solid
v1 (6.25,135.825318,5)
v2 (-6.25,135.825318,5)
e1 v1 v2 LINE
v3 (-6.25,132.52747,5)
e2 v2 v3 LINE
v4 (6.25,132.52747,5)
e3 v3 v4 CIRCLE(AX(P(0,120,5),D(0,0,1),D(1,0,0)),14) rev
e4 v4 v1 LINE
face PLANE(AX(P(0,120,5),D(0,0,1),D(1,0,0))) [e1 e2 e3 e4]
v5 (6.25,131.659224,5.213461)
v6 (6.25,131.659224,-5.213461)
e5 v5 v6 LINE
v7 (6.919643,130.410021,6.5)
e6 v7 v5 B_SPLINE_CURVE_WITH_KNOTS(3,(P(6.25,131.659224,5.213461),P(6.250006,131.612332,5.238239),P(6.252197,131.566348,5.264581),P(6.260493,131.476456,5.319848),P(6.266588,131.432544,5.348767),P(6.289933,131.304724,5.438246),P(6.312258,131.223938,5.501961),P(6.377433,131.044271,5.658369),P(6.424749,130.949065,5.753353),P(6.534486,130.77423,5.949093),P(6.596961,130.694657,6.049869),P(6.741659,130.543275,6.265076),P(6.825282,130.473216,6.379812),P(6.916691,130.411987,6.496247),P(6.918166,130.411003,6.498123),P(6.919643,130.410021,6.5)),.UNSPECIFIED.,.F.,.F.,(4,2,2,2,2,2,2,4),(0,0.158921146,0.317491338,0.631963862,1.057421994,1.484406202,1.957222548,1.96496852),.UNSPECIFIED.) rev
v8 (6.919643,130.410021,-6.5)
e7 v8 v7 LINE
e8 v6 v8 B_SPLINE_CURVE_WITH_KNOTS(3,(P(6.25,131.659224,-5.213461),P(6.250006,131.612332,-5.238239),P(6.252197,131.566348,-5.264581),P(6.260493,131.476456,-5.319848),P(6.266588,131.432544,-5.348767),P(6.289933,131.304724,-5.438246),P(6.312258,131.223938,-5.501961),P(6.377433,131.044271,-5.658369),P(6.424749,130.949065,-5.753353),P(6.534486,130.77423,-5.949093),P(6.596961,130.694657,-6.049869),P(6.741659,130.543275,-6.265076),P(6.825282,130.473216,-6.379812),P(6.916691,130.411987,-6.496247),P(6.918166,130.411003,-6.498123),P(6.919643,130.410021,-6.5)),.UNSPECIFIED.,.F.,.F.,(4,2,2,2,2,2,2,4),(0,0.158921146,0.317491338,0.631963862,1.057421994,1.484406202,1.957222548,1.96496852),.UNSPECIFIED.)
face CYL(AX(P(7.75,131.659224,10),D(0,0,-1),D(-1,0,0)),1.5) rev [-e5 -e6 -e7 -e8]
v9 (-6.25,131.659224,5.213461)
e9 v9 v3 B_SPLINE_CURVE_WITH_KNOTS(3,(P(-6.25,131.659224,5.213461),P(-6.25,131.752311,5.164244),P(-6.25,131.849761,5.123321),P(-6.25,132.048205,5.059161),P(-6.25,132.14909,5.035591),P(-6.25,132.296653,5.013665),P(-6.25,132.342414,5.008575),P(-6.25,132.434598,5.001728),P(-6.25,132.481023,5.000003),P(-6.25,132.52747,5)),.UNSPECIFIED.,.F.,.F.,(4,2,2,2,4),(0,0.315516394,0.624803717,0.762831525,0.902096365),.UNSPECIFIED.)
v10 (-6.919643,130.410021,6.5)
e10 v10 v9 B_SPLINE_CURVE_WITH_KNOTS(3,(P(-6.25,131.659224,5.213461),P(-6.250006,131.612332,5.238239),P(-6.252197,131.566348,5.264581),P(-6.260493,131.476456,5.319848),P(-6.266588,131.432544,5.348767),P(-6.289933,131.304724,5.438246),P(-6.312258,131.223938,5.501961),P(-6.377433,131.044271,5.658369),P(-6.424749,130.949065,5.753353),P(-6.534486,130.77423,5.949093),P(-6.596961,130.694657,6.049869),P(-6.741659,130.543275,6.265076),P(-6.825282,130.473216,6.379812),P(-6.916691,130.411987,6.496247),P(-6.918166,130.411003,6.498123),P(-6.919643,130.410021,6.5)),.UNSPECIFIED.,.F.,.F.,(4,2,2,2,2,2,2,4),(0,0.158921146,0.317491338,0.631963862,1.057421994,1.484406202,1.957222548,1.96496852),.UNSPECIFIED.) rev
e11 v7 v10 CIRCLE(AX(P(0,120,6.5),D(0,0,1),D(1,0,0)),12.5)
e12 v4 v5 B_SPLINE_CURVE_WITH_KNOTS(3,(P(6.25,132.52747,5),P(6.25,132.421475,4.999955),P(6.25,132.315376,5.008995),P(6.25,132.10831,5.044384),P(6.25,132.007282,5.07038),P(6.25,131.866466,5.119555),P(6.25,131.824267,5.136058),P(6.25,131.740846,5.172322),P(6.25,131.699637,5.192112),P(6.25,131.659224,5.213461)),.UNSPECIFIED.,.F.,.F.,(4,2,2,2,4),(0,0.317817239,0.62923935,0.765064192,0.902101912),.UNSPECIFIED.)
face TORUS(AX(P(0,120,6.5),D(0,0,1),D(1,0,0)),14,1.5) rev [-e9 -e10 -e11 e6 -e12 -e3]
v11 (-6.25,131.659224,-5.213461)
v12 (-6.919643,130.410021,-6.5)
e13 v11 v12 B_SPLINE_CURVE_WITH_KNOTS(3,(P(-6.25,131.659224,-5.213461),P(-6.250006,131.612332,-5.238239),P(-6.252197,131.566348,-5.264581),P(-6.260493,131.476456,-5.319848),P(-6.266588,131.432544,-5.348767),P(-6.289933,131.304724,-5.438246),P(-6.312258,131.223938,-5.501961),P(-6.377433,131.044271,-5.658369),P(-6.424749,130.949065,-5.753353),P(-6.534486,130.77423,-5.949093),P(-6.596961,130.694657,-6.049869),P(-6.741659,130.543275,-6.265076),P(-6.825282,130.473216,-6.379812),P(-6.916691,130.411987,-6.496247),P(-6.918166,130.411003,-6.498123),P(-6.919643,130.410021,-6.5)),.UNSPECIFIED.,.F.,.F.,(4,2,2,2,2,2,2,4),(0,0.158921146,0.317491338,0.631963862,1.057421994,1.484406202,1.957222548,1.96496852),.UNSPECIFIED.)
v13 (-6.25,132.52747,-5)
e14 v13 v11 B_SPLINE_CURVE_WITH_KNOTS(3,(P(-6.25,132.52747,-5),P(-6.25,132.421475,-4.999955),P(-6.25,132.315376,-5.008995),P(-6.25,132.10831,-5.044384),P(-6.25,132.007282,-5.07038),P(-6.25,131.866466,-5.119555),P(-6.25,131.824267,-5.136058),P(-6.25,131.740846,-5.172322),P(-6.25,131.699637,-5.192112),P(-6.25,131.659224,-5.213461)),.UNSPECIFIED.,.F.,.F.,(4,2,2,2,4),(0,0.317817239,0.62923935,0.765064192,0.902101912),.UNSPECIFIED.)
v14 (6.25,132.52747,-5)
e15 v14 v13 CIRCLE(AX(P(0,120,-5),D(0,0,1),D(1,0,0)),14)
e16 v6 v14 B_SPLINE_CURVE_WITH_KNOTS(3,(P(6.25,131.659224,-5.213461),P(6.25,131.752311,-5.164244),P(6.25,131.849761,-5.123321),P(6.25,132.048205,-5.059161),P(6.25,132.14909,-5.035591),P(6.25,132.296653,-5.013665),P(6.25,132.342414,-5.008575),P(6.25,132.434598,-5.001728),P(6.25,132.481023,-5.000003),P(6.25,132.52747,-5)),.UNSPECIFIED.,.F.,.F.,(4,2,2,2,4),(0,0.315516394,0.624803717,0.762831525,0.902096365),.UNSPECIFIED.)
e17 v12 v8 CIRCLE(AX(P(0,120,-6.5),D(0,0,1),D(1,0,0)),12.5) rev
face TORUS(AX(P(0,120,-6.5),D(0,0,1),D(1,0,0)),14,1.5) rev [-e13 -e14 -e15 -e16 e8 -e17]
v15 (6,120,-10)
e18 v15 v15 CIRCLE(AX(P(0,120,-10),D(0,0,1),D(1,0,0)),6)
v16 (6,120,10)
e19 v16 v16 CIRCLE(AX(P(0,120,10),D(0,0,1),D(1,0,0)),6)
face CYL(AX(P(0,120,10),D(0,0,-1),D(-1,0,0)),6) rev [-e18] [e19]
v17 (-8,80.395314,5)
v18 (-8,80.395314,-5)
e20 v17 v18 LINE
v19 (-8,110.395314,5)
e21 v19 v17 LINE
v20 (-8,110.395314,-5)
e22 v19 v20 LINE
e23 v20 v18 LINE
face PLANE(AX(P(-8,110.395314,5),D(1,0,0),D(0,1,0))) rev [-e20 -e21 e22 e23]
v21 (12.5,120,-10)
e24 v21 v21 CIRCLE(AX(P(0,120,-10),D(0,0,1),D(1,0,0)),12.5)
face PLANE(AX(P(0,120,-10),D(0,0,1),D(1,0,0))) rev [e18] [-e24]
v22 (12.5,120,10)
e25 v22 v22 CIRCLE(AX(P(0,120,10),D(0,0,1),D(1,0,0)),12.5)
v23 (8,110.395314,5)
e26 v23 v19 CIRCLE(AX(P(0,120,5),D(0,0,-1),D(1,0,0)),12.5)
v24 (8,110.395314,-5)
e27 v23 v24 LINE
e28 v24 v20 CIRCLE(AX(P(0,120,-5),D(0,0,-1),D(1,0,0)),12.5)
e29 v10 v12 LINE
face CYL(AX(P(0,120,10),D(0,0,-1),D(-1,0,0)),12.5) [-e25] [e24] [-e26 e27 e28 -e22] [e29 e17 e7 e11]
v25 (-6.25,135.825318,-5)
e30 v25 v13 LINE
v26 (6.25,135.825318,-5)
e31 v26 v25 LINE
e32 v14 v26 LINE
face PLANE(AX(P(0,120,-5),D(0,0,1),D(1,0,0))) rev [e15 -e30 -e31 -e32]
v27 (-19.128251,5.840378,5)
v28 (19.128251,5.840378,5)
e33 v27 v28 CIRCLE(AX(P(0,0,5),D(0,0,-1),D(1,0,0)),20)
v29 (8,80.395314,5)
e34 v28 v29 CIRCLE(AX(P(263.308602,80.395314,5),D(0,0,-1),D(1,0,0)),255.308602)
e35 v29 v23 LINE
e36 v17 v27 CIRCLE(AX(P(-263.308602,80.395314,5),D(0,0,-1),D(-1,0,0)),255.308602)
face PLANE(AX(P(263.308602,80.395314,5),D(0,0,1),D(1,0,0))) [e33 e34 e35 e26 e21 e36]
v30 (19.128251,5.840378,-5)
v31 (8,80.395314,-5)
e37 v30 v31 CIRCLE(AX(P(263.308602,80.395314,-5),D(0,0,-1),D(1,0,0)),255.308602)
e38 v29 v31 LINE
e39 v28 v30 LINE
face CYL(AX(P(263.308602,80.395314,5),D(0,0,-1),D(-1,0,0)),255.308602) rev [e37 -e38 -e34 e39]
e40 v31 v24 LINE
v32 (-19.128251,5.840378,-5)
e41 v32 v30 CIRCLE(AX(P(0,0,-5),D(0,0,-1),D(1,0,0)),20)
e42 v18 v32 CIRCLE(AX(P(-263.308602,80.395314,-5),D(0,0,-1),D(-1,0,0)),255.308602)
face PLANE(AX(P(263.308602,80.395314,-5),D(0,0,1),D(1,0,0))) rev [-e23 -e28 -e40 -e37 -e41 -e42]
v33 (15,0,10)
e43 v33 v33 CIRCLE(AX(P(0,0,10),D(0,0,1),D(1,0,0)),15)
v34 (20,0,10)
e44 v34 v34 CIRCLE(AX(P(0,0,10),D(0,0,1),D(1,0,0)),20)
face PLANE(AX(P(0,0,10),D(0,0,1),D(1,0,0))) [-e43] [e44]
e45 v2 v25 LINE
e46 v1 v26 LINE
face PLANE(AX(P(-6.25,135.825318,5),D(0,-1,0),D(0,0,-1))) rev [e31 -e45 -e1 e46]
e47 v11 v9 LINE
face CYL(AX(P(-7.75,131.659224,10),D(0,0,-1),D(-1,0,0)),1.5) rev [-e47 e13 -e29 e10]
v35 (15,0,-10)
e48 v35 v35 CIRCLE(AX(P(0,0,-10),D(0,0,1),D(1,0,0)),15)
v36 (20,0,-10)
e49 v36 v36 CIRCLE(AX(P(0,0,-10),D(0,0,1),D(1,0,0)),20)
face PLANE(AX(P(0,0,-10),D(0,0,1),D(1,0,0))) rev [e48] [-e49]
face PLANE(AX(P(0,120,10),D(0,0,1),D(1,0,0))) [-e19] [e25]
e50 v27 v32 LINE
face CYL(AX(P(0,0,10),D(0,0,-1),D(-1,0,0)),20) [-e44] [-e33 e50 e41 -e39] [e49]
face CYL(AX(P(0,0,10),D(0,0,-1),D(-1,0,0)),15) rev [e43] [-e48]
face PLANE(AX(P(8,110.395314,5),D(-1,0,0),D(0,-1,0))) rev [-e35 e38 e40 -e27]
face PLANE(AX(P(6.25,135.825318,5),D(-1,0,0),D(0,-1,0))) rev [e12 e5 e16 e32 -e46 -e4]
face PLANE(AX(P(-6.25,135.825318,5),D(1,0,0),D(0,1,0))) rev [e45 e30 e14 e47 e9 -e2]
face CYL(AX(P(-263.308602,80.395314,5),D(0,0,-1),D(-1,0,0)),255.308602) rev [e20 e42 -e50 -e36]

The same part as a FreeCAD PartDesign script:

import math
import FreeCAD as App
import Part
import Sketcher


def edges_at(feature, points):
    """Names of the edges that pass closest to the given points."""
    edges = feature.Shape.Edges
    near = lambda p: min(range(len(edges)), key=lambda i: edges[i].distToShape(Part.Vertex(*p))[0])
    return sorted({f"Edge{near(p) + 1}" for p in points})

doc = App.newDocument("Part")
body = doc.addObject("PartDesign::Body", "Body")

# Sketch on XY plane
sketch1 = body.newObject("Sketcher::SketchObject", "Sketch")
sketch1.AttachmentSupport = (doc.getObject("XY_Plane"), [""])
sketch1.MapMode = "FlatFace"
sketch1.addGeometry([
    Part.Circle(App.Vector(0, 0, 0), App.Vector(0, 0, 1), 20),
    Part.Circle(App.Vector(0, 0, 0), App.Vector(0, 0, 1), 15),
], False)
sketch1.addConstraint([
    Sketcher.Constraint("Coincident", 0, 3, -1, 1),
    Sketcher.Constraint("Coincident", 1, 3, -1, 1),
    Sketcher.Constraint("Diameter", 0, 40.0),
    Sketcher.Constraint("Diameter", 1, 30.0),
])
pad1 = body.newObject("PartDesign::Pad", "Pad")
pad1.Profile = sketch1
pad1.Length = 20
pad1.Midplane = True
body2 = doc.addObject("PartDesign::Body", "Body001")

# Sketch on XY plane
sketch2 = body2.newObject("Sketcher::SketchObject", "Sketch001")
sketch2.AttachmentSupport = (doc.getObject("XY_Plane001"), [""])
sketch2.MapMode = "FlatFace"
sketch2.addGeometry([
    Part.Circle(App.Vector(0, 120, 0), App.Vector(0, 0, 1), 12.5),
    Part.Circle(App.Vector(0, 120, 0), App.Vector(0, 0, 1), 6),
], False)
sketch2.addConstraint([
    Sketcher.Constraint("Coincident", 1, 3, 0, 3),
    Sketcher.Constraint("PointOnObject", 0, 3, -2),
    Sketcher.Constraint("Diameter", 0, 25.0),
    Sketcher.Constraint("Diameter", 1, 12.0),
    Sketcher.Constraint("DistanceY", -1, 1, 0, 3, 120.0),
])
pad2 = body2.newObject("PartDesign::Pad", "Pad001")
pad2.Profile = sketch2
pad2.Length = 20
pad2.Midplane = True
body.AllowCompound = True
doc.recompute()

boolean = body.newObject("PartDesign::Boolean", "Boolean")
boolean.Type = "Fuse"
boolean.addObjects([body2])

# Sketch on XY plane
sketch3 = body.newObject("Sketcher::SketchObject", "Sketch002")
sketch3.AttachmentSupport = (doc.getObject("XY_Plane"), [""])
sketch3.MapMode = "FlatFace"
sketch3.addGeometry([
    Part.LineSegment(App.Vector(8, 80.395314, 0), App.Vector(8, 110.395314, 0)),  # 0
    Part.ArcOfCircle(Part.Circle(App.Vector(0, 120, 0), App.Vector(0, 0, 1), 12.5), math.radians(-129.791819), math.radians(-50.208181)),  # 1
    Part.LineSegment(App.Vector(-8, 110.395314, 0), App.Vector(-8, 80.395314, 0)),  # 2
    Part.ArcOfCircle(Part.Circle(App.Vector(-263.308602, 80.395314, 0), App.Vector(0, 0, 1), 255.308602), math.radians(-16.978863), math.radians(0)),  # 3
    Part.ArcOfCircle(Part.Circle(App.Vector(0, 0, 0), App.Vector(0, 0, 1), 20), math.radians(16.978863), math.radians(163.021137)),  # 4
    Part.ArcOfCircle(Part.Circle(App.Vector(263.308602, 80.395314, 0), App.Vector(0, 0, 1), 255.308602), math.radians(-180), math.radians(-163.021137)),  # 5
], False)
sketch3.addConstraint([
    Sketcher.Constraint("Coincident", 0, 2, 1, 2),
    Sketcher.Constraint("Coincident", 1, 1, 2, 1),
    Sketcher.Constraint("Tangent", 2, 2, 3, 2),
    Sketcher.Constraint("Tangent", 3, 1, 4, 2),
    Sketcher.Constraint("Tangent", 4, 1, 5, 2),
    Sketcher.Constraint("Tangent", 5, 1, 0, 1),
    Sketcher.Constraint("Vertical", 0),
    Sketcher.Constraint("Vertical", 2),
    Sketcher.Constraint("Coincident", 4, 3, -1, 1),
    Sketcher.Constraint("Equal", 3, 5),
    Sketcher.Constraint("Symmetric", 0, 2, 1, 1, -2),
    Sketcher.Constraint("Radius", 4, 20.0),
    Sketcher.Constraint("Radius", 1, 12.5),
    Sketcher.Constraint("DistanceY", 0, 1, 0, 2, 30.0),
    Sketcher.Constraint("DistanceY", -1, 1, 1, 3, 120.0),
    Sketcher.Constraint("DistanceX", -1, 1, 0, 2, 8.0),
])
pad3 = body.newObject("PartDesign::Pad", "Pad002")
pad3.Profile = sketch3
pad3.Length = 10
pad3.Midplane = True

# Sketch on XY plane
sketch4 = body.newObject("Sketcher::SketchObject", "Sketch003")
sketch4.AttachmentSupport = (doc.getObject("XY_Plane"), [""])
sketch4.MapMode = "FlatFace"
sketch4.addGeometry([
    Part.LineSegment(App.Vector(-6.25, 135.825318, 0), App.Vector(-6.25, 130.825318, 0)),
    Part.ArcOfCircle(Part.Circle(App.Vector(0, 120, 0), App.Vector(0, 0, 1), 12.5), math.radians(60), math.radians(120)),
    Part.LineSegment(App.Vector(6.25, 130.825318, 0), App.Vector(6.25, 135.825318, 0)),
    Part.LineSegment(App.Vector(6.25, 135.825318, 0), App.Vector(-6.25, 135.825318, 0)),
], False)
sketch4.addConstraint([
    Sketcher.Constraint("Coincident", 0, 2, 1, 2),
    Sketcher.Constraint("Coincident", 1, 1, 2, 1),
    Sketcher.Constraint("Coincident", 2, 2, 3, 1),
    Sketcher.Constraint("Coincident", 3, 2, 0, 1),
    Sketcher.Constraint("Vertical", 0),
    Sketcher.Constraint("Vertical", 2),
    Sketcher.Constraint("Horizontal", 3),
    Sketcher.Constraint("Symmetric", 0, 2, 1, 1, -2),
    Sketcher.Constraint("Radius", 1, 12.5),
    Sketcher.Constraint("DistanceY", 0, 2, 0, 1, 5.0),
    Sketcher.Constraint("DistanceX", 3, 2, 3, 1, 12.5),
    Sketcher.Constraint("DistanceY", -1, 1, 1, 3, 120.0),
])
pad4 = body.newObject("PartDesign::Pad", "Pad003")
pad4.Profile = sketch4
pad4.Length = 10
pad4.Midplane = True
doc.recompute()

fillet = body.newObject("PartDesign::Fillet", "Fillet")
fillet.Base = (pad4, edges_at(pad4, [
    (0, 132.5, -5),
    (-6.25, 130.825, 0),
    (6.25, 130.825, 0),
    (0, 132.5, 5),
]))
fillet.Radius = 1.5

doc.recompute()
